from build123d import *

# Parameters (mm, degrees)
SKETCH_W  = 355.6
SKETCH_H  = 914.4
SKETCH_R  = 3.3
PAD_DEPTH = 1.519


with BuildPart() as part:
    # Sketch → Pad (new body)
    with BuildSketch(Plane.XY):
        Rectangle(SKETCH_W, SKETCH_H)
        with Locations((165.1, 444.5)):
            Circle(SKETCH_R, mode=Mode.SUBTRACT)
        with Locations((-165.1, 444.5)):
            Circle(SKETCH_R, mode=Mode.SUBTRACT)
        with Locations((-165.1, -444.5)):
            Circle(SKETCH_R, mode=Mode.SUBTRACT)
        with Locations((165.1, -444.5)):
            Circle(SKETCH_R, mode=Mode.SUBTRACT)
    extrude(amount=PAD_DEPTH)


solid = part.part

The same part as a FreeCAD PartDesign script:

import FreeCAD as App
import Part
import Sketcher
from FreeCAD import Vector
Q = App.Units.Quantity

doc = App.newDocument("Part")
body = doc.addObject("PartDesign::Body", "Body")

sketch1 = doc.addObject("Sketcher::SketchObject", "Sketch")
body.addObject(sketch1)
sketch1.AttachmentSupport = (doc.XY_Plane, [""])
sketch1.MapMode = "FlatFace"
sketch1.addGeometry([
    Part.LineSegment(Vector(-177.8, 457.2, 0), Vector(-177.8, -457.2, 0)),
    Part.LineSegment(Vector(-177.8, -457.2, 0), Vector(177.8, -457.2, 0)),
    Part.LineSegment(Vector(177.8, -457.2, 0), Vector(177.8, 457.2, 0)),
    Part.LineSegment(Vector(177.8, 457.2, 0), Vector(-177.8, 457.2, 0)),
    Part.Circle(Vector(-165.1, -444.5, 0), Vector(0, 0, 1), 3.3),
    Part.Circle(Vector(165.1, -444.5, 0), Vector(0, 0, 1), 3.3),
    Part.Circle(Vector(-165.1, 444.5, 0), Vector(0, 0, 1), 3.3),
    Part.Circle(Vector(165.1, 444.5, 0), Vector(0, 0, 1), 3.3),
], False)
sketch1.addConstraint([
    Sketcher.Constraint("Coincident", 0, 2, 1, 1),
    Sketcher.Constraint("Coincident", 1, 2, 2, 1),
    Sketcher.Constraint("Coincident", 2, 2, 3, 1),
    Sketcher.Constraint("Coincident", 3, 2, 0, 1),
    Sketcher.Constraint("Vertical", 0),
    Sketcher.Constraint("Horizontal", 1),
    Sketcher.Constraint("Vertical", 2),
    Sketcher.Constraint("Horizontal", 3),
    Sketcher.Constraint("Equal", 4, 5),
    Sketcher.Constraint("Equal", 5, 6),
    Sketcher.Constraint("Equal", 6, 7),
    Sketcher.Constraint("Symmetric", 5, 3, 6, 3, -1, 1),
    Sketcher.Constraint("Symmetric", 4, 3, 7, 3, -1, 1),
    Sketcher.Constraint("Symmetric", 0, 2, 2, 2, -1, 1),
    Sketcher.Constraint("Symmetric", 4, 3, 5, 3, -2),
    Sketcher.Constraint("DistanceX", 1, 1, 1, 2, Q("14 in")),
    Sketcher.Constraint("DistanceY", 0, 2, 0, 1, Q("36 in")),
    Sketcher.Constraint("DistanceX", 4, 3, 5, 3, Q("13 in")),
    Sketcher.Constraint("DistanceY", 4, 3, 6, 3, Q("35 in")),
    Sketcher.Constraint("Diameter", 4, 6.6),
])
pad1 = doc.addObject("PartDesign::Pad", "Pad")
body.addObject(pad1)
pad1.Profile = sketch1
pad1.Length = 1.519

doc.recompute()
